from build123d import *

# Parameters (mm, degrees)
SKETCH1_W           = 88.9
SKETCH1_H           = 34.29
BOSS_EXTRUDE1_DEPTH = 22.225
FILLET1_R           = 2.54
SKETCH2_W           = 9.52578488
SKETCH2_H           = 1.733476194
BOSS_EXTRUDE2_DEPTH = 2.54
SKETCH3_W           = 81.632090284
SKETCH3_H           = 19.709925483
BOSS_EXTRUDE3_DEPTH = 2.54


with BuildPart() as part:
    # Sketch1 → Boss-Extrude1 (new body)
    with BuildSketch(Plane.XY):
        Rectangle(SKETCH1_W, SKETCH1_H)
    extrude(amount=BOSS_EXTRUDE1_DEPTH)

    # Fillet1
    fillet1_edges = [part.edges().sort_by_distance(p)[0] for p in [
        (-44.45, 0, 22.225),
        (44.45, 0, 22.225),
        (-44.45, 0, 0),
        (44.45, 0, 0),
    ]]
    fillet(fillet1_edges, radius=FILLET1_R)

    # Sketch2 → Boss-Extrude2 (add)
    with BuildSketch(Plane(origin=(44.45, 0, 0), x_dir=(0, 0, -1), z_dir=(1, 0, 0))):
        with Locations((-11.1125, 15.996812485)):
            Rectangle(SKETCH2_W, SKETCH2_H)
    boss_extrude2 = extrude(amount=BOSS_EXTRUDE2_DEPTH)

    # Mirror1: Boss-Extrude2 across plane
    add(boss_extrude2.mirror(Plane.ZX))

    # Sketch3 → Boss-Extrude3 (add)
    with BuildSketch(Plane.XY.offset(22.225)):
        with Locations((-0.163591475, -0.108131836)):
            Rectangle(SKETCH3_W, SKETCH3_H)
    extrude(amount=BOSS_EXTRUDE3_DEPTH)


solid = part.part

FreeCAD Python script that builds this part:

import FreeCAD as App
import Part
import Sketcher

V = App.Vector
Q = App.Units.Quantity


def edges_at(feature, points):
    """Names of the edges that pass closest to the given points."""
    edges = feature.Shape.Edges
    near = lambda p: min(range(len(edges)), key=lambda i: edges[i].distToShape(Part.Vertex(*p))[0])
    return sorted({f"Edge{near(p) + 1}" for p in points})

doc = App.newDocument("Part")
body = doc.addObject("PartDesign::Body", "Body")

# Sketch on XY plane
sketch1 = body.newObject("Sketcher::SketchObject", "Sketch")
sketch1.AttachmentSupport = (doc.getObject("XY_Plane"), [""])
sketch1.MapMode = "FlatFace"
sketch1.addGeometry([
    Part.LineSegment(V(-44.45, 17.145, 0), V(-44.45, -17.145, 0)),
    Part.LineSegment(V(-44.45, -17.145, 0), V(44.45, -17.145, 0)),
    Part.LineSegment(V(44.45, -17.145, 0), V(44.45, 17.145, 0)),
    Part.LineSegment(V(44.45, 17.145, 0), V(-44.45, 17.145, 0)),
], False)
sketch1.addConstraint([
    Sketcher.Constraint("Coincident", 0, 2, 1, 1),
    Sketcher.Constraint("Coincident", 1, 2, 2, 1),
    Sketcher.Constraint("Coincident", 2, 2, 3, 1),
    Sketcher.Constraint("Coincident", 3, 2, 0, 1),
    Sketcher.Constraint("Vertical", 0),
    Sketcher.Constraint("Horizontal", 1),
    Sketcher.Constraint("Vertical", 2),
    Sketcher.Constraint("Horizontal", 3),
    Sketcher.Constraint("Symmetric", 0, 2, 2, 2, -1, 1),
    Sketcher.Constraint("DistanceX", 1, 1, 1, 2, Q("3.5 in")),
    Sketcher.Constraint("DistanceY", 0, 2, 0, 1, Q("1.35 in")),
])
pad1 = body.newObject("PartDesign::Pad", "Pad")
pad1.Profile = sketch1
pad1.Length = Q("0.875 in")
doc.recompute()

fillet = body.newObject("PartDesign::Fillet", "Fillet")
fillet.Base = (pad1, edges_at(pad1, [
    (-44.45, 0, 22.225),
    (44.45, 0, 22.225),
    (-44.45, 0, 0),
    (44.45, 0, 0),
]))
fillet.Radius = Q("0.1 in")

# Sketch on YZ plane
sketch2 = body.newObject("Sketcher::SketchObject", "Sketch001")
sketch2.AttachmentSupport = (doc.getObject("YZ_Plane"), [""])
sketch2.MapMode = "FlatFace"
sketch2.AttachmentOffset = App.Placement(V(0, 0, 1.75 * 25.4), App.Rotation())
sketch2.addGeometry([
    Part.LineSegment(V(16.863551, 15.875392, 0), V(15.130074, 15.875392, 0)),
    Part.LineSegment(V(15.130074, 15.875392, 0), V(15.130074, 6.349608, 0)),
    Part.LineSegment(V(15.130074, 6.349608, 0), V(16.863551, 6.349608, 0)),
    Part.LineSegment(V(16.863551, 6.349608, 0), V(16.863551, 15.875392, 0)),
], False)
sketch2.addConstraint([
    Sketcher.Constraint("Coincident", 0, 2, 1, 1),
    Sketcher.Constraint("Coincident", 1, 2, 2, 1),
    Sketcher.Constraint("Coincident", 2, 2, 3, 1),
    Sketcher.Constraint("Coincident", 3, 2, 0, 1),
    Sketcher.Constraint("Horizontal", 0),
    Sketcher.Constraint("Vertical", 1),
    Sketcher.Constraint("Horizontal", 2),
    Sketcher.Constraint("Vertical", 3),
    Sketcher.Constraint("DistanceX", 0, 2, 0, 1, 1.733476),
    Sketcher.Constraint("DistanceY", 1, 2, 1, 1, 9.525785),
    Sketcher.Constraint("DistanceX", -1, 1, 2, 2, 16.863551),
    Sketcher.Constraint("DistanceY", -1, 1, 0, 2, 15.875392),
])
pad2 = body.newObject("PartDesign::Pad", "Pad001")
pad2.Profile = sketch2
pad2.Length = Q("0.1 in")
doc.recompute()

mirrored = body.newObject("PartDesign::Mirrored", "Mirrored")
mirrored.Originals = [pad2]
mirrored.MirrorPlane = (doc.getObject("XZ_Plane"), [""])
body.Tip = mirrored

# Sketch on XY plane
sketch3 = body.newObject("Sketcher::SketchObject", "Sketch002")
sketch3.AttachmentSupport = (doc.getObject("XY_Plane"), [""])
sketch3.MapMode = "FlatFace"
sketch3.AttachmentOffset = App.Placement(V(0, 0, 0.875 * 25.4), App.Rotation())
sketch3.addGeometry([
    Part.LineSegment(V(-40.979637, 9.746831, 0), V(-40.979637, -9.963095, 0)),
    Part.LineSegment(V(-40.979637, -9.963095, 0), V(40.652454, -9.963095, 0)),
    Part.LineSegment(V(40.652454, -9.963095, 0), V(40.652454, 9.746831, 0)),
    Part.LineSegment(V(40.652454, 9.746831, 0), V(-40.979637, 9.746831, 0)),
], False)
sketch3.addConstraint([
    Sketcher.Constraint("Coincident", 0, 2, 1, 1),
    Sketcher.Constraint("Coincident", 1, 2, 2, 1),
    Sketcher.Constraint("Coincident", 2, 2, 3, 1),
    Sketcher.Constraint("Coincident", 3, 2, 0, 1),
    Sketcher.Constraint("Vertical", 0),
    Sketcher.Constraint("Horizontal", 1),
    Sketcher.Constraint("Vertical", 2),
    Sketcher.Constraint("Horizontal", 3),
    Sketcher.Constraint("DistanceX", 1, 1, 1, 2, 81.63209),
    Sketcher.Constraint("DistanceY", 0, 2, 0, 1, 19.709925),
    Sketcher.Constraint("DistanceY", -1, 1, 2, 2, 9.746831),
    Sketcher.Constraint("DistanceX", 0, 2, -1, 1, 40.979637),
])
pad3 = body.newObject("PartDesign::Pad", "Pad002")
pad3.Profile = sketch3
pad3.Length = Q("0.1 in")

doc.recompute()
